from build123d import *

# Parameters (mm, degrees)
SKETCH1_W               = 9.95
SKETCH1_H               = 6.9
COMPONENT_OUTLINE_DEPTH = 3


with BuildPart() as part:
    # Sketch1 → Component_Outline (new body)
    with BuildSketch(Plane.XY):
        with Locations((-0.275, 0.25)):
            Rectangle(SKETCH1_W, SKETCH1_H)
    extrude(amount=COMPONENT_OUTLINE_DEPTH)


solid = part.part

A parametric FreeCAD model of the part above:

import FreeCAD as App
import Part
import Sketcher

doc = App.newDocument("Part")
params = doc.addObject("Spreadsheet::Sheet", "Params")
for row, (alias, value) in enumerate([
    ("sketch1_height", "6.9 mm"),
    ("sketch1_width", "9.95 mm"),
    ("pad1_length", "3 mm"),
], start=1):
    params.set(f"A{row}", alias)
    params.set(f"B{row}", "=" + value)
    params.setAlias(f"B{row}", alias)

body = doc.addObject("PartDesign::Body", "Body")

# Sketch on XY plane
sketch1 = doc.addObject("Sketcher::SketchObject", "Sketch")
body.addObject(sketch1)
sketch1.AttachmentSupport = (doc.XY_Plane, [""])
sketch1.MapMode = "FlatFace"
sketch1.addGeometry(Part.LineSegment(App.Vector(-5.25, 3.7, 0), App.Vector(-5.25, -3.2, 0)), False)
sketch1.addGeometry(Part.LineSegment(App.Vector(-5.25, -3.2, 0), App.Vector(4.7, -3.2, 0)), False)
sketch1.addGeometry(Part.LineSegment(App.Vector(4.7, -3.2, 0), App.Vector(4.7, 3.7, 0)), False)
sketch1.addGeometry(Part.LineSegment(App.Vector(4.7, 3.7, 0), App.Vector(-5.25, 3.7, 0)), False)
sketch1.addConstraint(Sketcher.Constraint("Coincident", 0, 2, 1, 1))
sketch1.addConstraint(Sketcher.Constraint("Coincident", 1, 2, 2, 1))
sketch1.addConstraint(Sketcher.Constraint("Coincident", 2, 2, 3, 1))
sketch1.addConstraint(Sketcher.Constraint("Coincident", 3, 2, 0, 1))
sketch1.addConstraint(Sketcher.Constraint("Vertical", 0))
sketch1.addConstraint(Sketcher.Constraint("Horizontal", 1))
sketch1.addConstraint(Sketcher.Constraint("Vertical", 2))
sketch1.addConstraint(Sketcher.Constraint("Horizontal", 3))
sketch1.addConstraint(Sketcher.Constraint("DistanceY", 0, 2, 0, 1, 6.9))
sketch1.addConstraint(Sketcher.Constraint("DistanceX", 1, 1, 1, 2, 9.95))
sketch1.addConstraint(Sketcher.Constraint("DistanceY", 0, 2, -1, 1, 3.2))
sketch1.addConstraint(Sketcher.Constraint("DistanceX", -1, 1, 1, 2, 4.7))
sketch1.setExpression("Constraints[8]", "Params.sketch1_height")
sketch1.setExpression("Constraints[9]", "Params.sketch1_width")
pad1 = doc.addObject("PartDesign::Pad", "Pad")
body.addObject(pad1)
pad1.Profile = sketch1
pad1.setExpression("Length", "Params.pad1_length")

doc.recompute()
